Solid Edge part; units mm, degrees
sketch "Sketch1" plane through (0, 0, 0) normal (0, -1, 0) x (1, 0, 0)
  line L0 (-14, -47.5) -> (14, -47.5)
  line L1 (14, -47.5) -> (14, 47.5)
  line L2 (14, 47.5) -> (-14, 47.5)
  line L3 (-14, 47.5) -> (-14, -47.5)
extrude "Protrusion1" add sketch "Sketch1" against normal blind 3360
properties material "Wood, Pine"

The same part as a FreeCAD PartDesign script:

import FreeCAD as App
import Part
import Sketcher


def add_polygon(sketch, points):
    """Adds a closed chain of lines whose ends are joined by coincident constraints."""
    first, n = sketch.GeometryCount, len(points)
    for a, b in zip(points, points[1:] + points[:1]):
        sketch.addGeometry(Part.LineSegment(App.Vector(*a, 0), App.Vector(*b, 0)), False)
    for i in range(n):
        sketch.addConstraint(Sketcher.Constraint("Coincident", first + i, 2, first + (i + 1) % n, 1))

doc = App.newDocument("Part")
body = doc.addObject("PartDesign::Body", "Body")

sketch1 = body.newObject("Sketcher::SketchObject", "Sketch")
sketch1.AttachmentSupport = (doc.getObject("XZ_Plane"), [""])
sketch1.MapMode = "FlatFace"
add_polygon(sketch1, [(-14, 48), (-14, -48), (14, -48), (14, 48)])
sketch1.addConstraint(Sketcher.Constraint("Vertical", 0))
sketch1.addConstraint(Sketcher.Constraint("Horizontal", 1))
sketch1.addConstraint(Sketcher.Constraint("Vertical", 2))
sketch1.addConstraint(Sketcher.Constraint("Horizontal", 3))
sketch1.addConstraint(Sketcher.Constraint("Symmetric", 0, 2, 2, 2, -1, 1))
sketch1.addConstraint(Sketcher.Constraint("DistanceX", 1, 1, 1, 2, 28.0))
sketch1.addConstraint(Sketcher.Constraint("DistanceY", 0, 2, 0, 1, 95.0))
pad1 = body.newObject("PartDesign::Pad", "Pad")
pad1.Profile = sketch1
pad1.Length = 3360
pad1.Reversed = True

doc.recompute()
